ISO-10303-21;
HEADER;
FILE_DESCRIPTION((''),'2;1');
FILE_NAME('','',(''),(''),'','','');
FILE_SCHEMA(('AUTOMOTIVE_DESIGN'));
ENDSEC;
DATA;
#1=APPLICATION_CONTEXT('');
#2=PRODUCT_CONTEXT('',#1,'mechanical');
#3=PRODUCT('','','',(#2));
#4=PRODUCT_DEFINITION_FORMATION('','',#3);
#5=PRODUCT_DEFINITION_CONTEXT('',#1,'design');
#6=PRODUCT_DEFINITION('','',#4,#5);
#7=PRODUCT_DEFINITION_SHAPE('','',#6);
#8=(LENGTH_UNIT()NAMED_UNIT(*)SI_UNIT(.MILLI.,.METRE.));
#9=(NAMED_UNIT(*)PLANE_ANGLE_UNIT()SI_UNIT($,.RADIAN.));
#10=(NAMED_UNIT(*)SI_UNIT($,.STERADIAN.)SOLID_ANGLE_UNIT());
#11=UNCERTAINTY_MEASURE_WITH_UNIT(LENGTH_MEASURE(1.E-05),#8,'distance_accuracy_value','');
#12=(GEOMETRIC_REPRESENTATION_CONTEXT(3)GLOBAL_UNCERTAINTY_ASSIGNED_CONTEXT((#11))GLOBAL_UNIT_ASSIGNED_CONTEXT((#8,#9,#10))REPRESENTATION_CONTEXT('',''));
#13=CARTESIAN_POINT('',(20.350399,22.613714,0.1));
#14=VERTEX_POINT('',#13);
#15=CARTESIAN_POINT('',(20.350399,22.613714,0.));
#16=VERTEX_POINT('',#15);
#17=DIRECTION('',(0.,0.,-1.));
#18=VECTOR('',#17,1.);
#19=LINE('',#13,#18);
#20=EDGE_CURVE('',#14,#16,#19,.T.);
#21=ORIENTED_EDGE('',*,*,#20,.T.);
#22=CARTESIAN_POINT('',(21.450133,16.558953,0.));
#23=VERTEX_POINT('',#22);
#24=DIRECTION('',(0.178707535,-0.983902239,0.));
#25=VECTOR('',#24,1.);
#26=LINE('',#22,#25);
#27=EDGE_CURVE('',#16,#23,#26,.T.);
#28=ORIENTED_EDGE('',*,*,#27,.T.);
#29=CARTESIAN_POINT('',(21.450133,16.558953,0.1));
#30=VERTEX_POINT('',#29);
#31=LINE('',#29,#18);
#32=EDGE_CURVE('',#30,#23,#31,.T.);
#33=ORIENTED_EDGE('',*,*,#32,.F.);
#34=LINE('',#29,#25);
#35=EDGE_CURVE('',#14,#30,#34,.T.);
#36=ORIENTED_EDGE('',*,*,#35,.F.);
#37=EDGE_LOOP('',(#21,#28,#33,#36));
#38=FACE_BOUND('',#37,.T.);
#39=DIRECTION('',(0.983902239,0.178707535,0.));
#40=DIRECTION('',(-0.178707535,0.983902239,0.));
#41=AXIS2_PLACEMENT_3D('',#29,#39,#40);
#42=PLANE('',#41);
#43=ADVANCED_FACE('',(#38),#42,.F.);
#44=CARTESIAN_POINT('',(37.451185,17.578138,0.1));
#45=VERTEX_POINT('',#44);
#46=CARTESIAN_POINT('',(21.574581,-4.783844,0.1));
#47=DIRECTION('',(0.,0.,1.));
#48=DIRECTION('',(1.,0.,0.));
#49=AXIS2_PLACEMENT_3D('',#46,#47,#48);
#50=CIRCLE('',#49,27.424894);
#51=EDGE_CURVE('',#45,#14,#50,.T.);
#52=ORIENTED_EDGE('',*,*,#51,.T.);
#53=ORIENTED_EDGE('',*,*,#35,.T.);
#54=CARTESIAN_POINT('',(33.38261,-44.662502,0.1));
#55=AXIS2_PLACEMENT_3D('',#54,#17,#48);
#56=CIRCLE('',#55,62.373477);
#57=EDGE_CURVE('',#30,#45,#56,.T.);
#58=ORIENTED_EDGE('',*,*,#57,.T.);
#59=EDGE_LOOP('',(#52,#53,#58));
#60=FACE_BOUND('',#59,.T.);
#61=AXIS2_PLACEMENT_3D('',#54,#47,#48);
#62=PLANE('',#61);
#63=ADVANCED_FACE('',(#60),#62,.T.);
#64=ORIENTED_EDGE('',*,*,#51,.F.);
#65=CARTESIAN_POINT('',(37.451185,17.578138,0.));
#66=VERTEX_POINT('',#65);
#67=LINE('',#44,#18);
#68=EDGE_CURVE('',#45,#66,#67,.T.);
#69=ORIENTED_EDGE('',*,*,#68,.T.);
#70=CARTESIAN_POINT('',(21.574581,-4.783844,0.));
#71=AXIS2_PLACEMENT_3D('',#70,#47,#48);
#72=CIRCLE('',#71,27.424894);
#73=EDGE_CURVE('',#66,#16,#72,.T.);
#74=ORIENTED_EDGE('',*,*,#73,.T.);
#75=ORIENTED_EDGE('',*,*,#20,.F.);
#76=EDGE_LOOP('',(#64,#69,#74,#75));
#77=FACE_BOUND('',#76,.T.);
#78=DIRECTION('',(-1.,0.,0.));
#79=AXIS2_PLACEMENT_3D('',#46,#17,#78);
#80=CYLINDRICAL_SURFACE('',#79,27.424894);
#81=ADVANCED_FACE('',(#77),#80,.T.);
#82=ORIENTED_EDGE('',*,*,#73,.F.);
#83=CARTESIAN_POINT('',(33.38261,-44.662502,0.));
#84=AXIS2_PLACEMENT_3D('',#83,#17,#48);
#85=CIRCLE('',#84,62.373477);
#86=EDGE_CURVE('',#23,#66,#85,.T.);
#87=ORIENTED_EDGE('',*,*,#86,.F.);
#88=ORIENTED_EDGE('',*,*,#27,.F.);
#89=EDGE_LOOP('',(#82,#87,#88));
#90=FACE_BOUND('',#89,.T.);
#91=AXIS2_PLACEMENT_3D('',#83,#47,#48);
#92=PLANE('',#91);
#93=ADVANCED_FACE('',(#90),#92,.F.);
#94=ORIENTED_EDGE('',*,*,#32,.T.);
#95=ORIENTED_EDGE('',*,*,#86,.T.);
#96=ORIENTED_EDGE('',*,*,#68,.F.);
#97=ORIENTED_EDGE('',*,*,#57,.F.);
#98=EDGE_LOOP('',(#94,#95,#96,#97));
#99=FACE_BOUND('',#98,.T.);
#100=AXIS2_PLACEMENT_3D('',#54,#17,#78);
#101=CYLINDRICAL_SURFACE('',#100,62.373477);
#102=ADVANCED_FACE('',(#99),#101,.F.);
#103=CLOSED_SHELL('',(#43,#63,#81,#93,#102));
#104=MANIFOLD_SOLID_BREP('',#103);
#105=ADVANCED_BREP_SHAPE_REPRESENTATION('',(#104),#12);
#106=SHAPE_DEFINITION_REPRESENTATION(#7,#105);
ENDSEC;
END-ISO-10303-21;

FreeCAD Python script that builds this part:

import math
import FreeCAD as App
import Part
import Sketcher

V = App.Vector

doc = App.newDocument("Part")
body = doc.addObject("PartDesign::Body", "Body")

# Sketch on XY plane
sketch1 = body.newObject("Sketcher::SketchObject", "Sketch")
sketch1.AttachmentSupport = (doc.getObject("XY_Plane"), [""])
sketch1.MapMode = "FlatFace"
sketch1.addGeometry(Part.LineSegment(V(20, 23, 0), V(21, 17, 0)), False)
sketch1.addGeometry(Part.ArcOfCircle(Part.Circle(V(33, -45, 0), V(0, 0, 1), 62), math.radians(86.26), math.radians(101.03)), False)
sketch1.addGeometry(Part.ArcOfCircle(Part.Circle(V(22, -5, 0), V(0, 0, 1), 27), math.radians(55), math.radians(93)), False)
sketch1.addConstraint(Sketcher.Constraint("Coincident", 0, 2, 1, 2))
sketch1.addConstraint(Sketcher.Constraint("Coincident", 1, 1, 2, 1))
sketch1.addConstraint(Sketcher.Constraint("Coincident", 2, 2, 0, 1))
sketch1.addConstraint(Sketcher.Constraint("Radius", 1, 62.373477))
sketch1.addConstraint(Sketcher.Constraint("Radius", 2, 27.424894))
sketch1.addConstraint(Sketcher.Constraint("DistanceX", -1, 1, 2, 2, 20.350399))
sketch1.addConstraint(Sketcher.Constraint("DistanceX", -1, 1, 1, 3, 33.38261))
sketch1.addConstraint(Sketcher.Constraint("DistanceX", -1, 1, 2, 3, 21.574581))
sketch1.addConstraint(Sketcher.Constraint("DistanceY", 1, 3, 2, 3, 39.878658))
sketch1.addConstraint(Sketcher.Constraint("DistanceX", 0, 2, 1, 1, 16.001052))
sketch1.addConstraint(Sketcher.Constraint("DistanceY", 1, 3, -1, 1, 44.662502))
pad1 = body.newObject("PartDesign::Pad", "Pad")
pad1.Profile = sketch1
pad1.Length = 0.1

doc.recompute()
